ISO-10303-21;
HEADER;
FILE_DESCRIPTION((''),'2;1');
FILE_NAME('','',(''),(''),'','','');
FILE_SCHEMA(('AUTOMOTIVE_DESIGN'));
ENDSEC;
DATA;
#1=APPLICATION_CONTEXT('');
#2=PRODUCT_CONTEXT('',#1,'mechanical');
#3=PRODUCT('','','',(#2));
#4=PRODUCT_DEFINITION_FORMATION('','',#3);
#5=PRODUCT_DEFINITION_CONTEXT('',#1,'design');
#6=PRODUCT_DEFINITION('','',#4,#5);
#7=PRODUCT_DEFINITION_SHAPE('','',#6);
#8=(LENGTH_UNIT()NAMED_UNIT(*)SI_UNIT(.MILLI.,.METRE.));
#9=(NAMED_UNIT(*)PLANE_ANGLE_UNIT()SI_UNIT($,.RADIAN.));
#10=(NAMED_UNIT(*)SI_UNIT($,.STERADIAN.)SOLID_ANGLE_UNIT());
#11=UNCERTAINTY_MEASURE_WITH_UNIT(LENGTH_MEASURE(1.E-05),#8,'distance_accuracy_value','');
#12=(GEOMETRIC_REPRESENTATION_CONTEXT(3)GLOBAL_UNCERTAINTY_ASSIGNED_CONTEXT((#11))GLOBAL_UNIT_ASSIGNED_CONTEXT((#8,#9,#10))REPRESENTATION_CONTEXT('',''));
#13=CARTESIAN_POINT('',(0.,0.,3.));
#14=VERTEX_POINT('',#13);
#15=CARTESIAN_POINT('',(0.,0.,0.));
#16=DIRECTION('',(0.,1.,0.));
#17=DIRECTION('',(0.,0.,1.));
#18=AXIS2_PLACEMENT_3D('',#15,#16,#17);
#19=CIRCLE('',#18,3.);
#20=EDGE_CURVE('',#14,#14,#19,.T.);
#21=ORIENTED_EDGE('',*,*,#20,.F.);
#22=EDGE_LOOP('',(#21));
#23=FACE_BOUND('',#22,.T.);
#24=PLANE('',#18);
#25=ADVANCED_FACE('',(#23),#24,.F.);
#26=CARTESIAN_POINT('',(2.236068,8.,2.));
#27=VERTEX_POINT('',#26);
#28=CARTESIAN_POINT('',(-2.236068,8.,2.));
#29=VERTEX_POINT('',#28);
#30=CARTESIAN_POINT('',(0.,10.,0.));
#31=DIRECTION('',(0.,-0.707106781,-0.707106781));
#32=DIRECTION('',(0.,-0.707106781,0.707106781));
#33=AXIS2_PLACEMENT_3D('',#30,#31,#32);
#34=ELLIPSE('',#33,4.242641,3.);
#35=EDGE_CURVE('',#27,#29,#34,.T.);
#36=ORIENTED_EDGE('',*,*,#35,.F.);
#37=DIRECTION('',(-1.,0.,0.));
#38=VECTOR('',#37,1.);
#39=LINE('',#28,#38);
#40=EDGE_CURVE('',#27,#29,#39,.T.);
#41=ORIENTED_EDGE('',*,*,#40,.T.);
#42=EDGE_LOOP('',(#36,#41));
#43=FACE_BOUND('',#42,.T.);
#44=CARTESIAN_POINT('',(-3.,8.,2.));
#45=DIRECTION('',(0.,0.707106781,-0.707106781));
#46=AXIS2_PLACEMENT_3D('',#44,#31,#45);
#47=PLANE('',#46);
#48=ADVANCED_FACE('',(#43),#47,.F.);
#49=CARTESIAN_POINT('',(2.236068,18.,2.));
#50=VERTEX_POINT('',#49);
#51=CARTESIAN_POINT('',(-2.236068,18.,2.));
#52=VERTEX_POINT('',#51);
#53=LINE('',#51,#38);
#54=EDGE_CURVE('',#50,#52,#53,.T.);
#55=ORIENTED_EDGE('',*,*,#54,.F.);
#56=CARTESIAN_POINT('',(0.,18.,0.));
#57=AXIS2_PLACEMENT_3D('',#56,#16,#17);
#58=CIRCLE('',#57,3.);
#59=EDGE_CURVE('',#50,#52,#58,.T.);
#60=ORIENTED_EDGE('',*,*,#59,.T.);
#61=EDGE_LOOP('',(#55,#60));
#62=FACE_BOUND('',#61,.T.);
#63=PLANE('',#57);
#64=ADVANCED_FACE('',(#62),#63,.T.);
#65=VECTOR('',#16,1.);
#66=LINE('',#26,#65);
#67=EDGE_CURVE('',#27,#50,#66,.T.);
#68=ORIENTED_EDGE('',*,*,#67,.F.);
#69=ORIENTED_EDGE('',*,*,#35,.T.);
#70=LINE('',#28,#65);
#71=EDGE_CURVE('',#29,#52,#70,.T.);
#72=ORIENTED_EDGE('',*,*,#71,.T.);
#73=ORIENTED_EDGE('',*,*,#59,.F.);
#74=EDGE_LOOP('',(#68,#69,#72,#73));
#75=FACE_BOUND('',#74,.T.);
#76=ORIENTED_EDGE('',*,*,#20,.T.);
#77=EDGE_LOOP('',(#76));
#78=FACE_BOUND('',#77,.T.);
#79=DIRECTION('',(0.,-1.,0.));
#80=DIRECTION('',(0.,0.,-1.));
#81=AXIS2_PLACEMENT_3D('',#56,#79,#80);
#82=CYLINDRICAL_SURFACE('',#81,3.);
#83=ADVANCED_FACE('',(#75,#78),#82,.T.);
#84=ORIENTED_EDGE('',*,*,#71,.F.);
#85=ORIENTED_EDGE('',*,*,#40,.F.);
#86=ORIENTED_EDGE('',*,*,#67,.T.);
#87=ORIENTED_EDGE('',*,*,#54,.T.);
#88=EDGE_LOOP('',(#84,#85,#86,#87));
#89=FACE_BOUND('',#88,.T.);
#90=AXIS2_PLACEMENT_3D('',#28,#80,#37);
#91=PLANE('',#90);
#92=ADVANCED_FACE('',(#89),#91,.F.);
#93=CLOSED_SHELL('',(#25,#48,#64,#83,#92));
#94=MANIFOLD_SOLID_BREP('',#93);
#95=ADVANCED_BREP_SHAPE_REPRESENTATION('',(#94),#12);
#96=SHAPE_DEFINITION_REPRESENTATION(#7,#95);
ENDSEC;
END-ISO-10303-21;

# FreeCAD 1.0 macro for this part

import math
import FreeCAD as App
import Part
import Sketcher
Q = App.Units.Quantity


def add_polygon(sketch, points):
    """Adds a closed chain of lines whose ends are joined by coincident constraints."""
    first, n = sketch.GeometryCount, len(points)
    for a, b in zip(points, points[1:] + points[:1]):
        sketch.addGeometry(Part.LineSegment(App.Vector(*a, 0), App.Vector(*b, 0)), False)
    for i in range(n):
        sketch.addConstraint(Sketcher.Constraint("Coincident", first + i, 2, first + (i + 1) % n, 1))

doc = App.newDocument("Part")
body = doc.addObject("PartDesign::Body", "Body")

sketch1 = body.newObject("Sketcher::SketchObject", "Sketch")
sketch1.AttachmentSupport = (doc.getObject("XZ_Plane"), [""])
sketch1.MapMode = "FlatFace"
sketch1.addGeometry(Part.Circle(App.Vector(0, 0, 0), App.Vector(0, 0, 1), 3), False)
sketch1.addConstraint(Sketcher.Constraint("Coincident", 0, 3, -1, 1))
sketch1.addConstraint(Sketcher.Constraint("Diameter", 0, Q("6 mm")))
pad1 = body.newObject("PartDesign::Pad", "Pad")
pad1.Profile = sketch1
pad1.Length = 18
pad1.Reversed = True

sketch2 = body.newObject("Sketcher::SketchObject", "Sketch001")
sketch2.AttachmentSupport = (doc.getObject("XZ_Plane"), [""])
sketch2.MapMode = "FlatFace"
sketch2.AttachmentOffset = App.Placement(App.Vector(0, 0, -8), App.Rotation())
sketch2.addGeometry(Part.LineSegment(App.Vector(2.2, 2, 0), App.Vector(-2.2, 2, 0)), False)
sketch2.addGeometry(Part.ArcOfCircle(Part.Circle(App.Vector(0, 0, 0), App.Vector(0, 0, 1), 3), math.radians(42), math.radians(138)), False)
sketch2.addConstraint(Sketcher.Constraint("Coincident", 0, 1, 1, 1))
sketch2.addConstraint(Sketcher.Constraint("Coincident", 1, 2, 0, 2))
sketch2.addConstraint(Sketcher.Constraint("Horizontal", 0))
sketch2.addConstraint(Sketcher.Constraint("Coincident", 1, 3, -1, 1))
sketch2.addConstraint(Sketcher.Constraint("Radius", 1, Q("3 mm")))
sketch2.addConstraint(Sketcher.Constraint("DistanceY", -1, 1, 0, 1, Q("2 mm")))
pocket1 = body.newObject("PartDesign::Pocket", "Pocket")
pocket1.Profile = sketch2
pocket1.Length = 10

sketch3 = body.newObject("Sketcher::SketchObject", "Sketch002")
sketch3.AttachmentSupport = (doc.getObject("YZ_Plane"), [""])
sketch3.MapMode = "FlatFace"
add_polygon(sketch3, [(7, 3), (8, 2), (8, 3)])
sketch3.addConstraint(Sketcher.Constraint("Vertical", 1))
sketch3.addConstraint(Sketcher.Constraint("Horizontal", 2))
sketch3.addConstraint(Sketcher.Constraint("Equal", 2, 1))
sketch3.addConstraint(Sketcher.Constraint("DistanceX", 2, 2, 2, 1, Q("1 mm")))
sketch3.addConstraint(Sketcher.Constraint("DistanceX", -1, 1, 0, 2, Q("8 mm")))
sketch3.addConstraint(Sketcher.Constraint("DistanceY", -1, 1, 0, 2, Q("2 mm")))
pocket2 = body.newObject("PartDesign::Pocket", "Pocket001")
pocket2.Profile = sketch3
pocket2.Type = "ThroughAll"
pocket2.Midplane = True

doc.recompute()
